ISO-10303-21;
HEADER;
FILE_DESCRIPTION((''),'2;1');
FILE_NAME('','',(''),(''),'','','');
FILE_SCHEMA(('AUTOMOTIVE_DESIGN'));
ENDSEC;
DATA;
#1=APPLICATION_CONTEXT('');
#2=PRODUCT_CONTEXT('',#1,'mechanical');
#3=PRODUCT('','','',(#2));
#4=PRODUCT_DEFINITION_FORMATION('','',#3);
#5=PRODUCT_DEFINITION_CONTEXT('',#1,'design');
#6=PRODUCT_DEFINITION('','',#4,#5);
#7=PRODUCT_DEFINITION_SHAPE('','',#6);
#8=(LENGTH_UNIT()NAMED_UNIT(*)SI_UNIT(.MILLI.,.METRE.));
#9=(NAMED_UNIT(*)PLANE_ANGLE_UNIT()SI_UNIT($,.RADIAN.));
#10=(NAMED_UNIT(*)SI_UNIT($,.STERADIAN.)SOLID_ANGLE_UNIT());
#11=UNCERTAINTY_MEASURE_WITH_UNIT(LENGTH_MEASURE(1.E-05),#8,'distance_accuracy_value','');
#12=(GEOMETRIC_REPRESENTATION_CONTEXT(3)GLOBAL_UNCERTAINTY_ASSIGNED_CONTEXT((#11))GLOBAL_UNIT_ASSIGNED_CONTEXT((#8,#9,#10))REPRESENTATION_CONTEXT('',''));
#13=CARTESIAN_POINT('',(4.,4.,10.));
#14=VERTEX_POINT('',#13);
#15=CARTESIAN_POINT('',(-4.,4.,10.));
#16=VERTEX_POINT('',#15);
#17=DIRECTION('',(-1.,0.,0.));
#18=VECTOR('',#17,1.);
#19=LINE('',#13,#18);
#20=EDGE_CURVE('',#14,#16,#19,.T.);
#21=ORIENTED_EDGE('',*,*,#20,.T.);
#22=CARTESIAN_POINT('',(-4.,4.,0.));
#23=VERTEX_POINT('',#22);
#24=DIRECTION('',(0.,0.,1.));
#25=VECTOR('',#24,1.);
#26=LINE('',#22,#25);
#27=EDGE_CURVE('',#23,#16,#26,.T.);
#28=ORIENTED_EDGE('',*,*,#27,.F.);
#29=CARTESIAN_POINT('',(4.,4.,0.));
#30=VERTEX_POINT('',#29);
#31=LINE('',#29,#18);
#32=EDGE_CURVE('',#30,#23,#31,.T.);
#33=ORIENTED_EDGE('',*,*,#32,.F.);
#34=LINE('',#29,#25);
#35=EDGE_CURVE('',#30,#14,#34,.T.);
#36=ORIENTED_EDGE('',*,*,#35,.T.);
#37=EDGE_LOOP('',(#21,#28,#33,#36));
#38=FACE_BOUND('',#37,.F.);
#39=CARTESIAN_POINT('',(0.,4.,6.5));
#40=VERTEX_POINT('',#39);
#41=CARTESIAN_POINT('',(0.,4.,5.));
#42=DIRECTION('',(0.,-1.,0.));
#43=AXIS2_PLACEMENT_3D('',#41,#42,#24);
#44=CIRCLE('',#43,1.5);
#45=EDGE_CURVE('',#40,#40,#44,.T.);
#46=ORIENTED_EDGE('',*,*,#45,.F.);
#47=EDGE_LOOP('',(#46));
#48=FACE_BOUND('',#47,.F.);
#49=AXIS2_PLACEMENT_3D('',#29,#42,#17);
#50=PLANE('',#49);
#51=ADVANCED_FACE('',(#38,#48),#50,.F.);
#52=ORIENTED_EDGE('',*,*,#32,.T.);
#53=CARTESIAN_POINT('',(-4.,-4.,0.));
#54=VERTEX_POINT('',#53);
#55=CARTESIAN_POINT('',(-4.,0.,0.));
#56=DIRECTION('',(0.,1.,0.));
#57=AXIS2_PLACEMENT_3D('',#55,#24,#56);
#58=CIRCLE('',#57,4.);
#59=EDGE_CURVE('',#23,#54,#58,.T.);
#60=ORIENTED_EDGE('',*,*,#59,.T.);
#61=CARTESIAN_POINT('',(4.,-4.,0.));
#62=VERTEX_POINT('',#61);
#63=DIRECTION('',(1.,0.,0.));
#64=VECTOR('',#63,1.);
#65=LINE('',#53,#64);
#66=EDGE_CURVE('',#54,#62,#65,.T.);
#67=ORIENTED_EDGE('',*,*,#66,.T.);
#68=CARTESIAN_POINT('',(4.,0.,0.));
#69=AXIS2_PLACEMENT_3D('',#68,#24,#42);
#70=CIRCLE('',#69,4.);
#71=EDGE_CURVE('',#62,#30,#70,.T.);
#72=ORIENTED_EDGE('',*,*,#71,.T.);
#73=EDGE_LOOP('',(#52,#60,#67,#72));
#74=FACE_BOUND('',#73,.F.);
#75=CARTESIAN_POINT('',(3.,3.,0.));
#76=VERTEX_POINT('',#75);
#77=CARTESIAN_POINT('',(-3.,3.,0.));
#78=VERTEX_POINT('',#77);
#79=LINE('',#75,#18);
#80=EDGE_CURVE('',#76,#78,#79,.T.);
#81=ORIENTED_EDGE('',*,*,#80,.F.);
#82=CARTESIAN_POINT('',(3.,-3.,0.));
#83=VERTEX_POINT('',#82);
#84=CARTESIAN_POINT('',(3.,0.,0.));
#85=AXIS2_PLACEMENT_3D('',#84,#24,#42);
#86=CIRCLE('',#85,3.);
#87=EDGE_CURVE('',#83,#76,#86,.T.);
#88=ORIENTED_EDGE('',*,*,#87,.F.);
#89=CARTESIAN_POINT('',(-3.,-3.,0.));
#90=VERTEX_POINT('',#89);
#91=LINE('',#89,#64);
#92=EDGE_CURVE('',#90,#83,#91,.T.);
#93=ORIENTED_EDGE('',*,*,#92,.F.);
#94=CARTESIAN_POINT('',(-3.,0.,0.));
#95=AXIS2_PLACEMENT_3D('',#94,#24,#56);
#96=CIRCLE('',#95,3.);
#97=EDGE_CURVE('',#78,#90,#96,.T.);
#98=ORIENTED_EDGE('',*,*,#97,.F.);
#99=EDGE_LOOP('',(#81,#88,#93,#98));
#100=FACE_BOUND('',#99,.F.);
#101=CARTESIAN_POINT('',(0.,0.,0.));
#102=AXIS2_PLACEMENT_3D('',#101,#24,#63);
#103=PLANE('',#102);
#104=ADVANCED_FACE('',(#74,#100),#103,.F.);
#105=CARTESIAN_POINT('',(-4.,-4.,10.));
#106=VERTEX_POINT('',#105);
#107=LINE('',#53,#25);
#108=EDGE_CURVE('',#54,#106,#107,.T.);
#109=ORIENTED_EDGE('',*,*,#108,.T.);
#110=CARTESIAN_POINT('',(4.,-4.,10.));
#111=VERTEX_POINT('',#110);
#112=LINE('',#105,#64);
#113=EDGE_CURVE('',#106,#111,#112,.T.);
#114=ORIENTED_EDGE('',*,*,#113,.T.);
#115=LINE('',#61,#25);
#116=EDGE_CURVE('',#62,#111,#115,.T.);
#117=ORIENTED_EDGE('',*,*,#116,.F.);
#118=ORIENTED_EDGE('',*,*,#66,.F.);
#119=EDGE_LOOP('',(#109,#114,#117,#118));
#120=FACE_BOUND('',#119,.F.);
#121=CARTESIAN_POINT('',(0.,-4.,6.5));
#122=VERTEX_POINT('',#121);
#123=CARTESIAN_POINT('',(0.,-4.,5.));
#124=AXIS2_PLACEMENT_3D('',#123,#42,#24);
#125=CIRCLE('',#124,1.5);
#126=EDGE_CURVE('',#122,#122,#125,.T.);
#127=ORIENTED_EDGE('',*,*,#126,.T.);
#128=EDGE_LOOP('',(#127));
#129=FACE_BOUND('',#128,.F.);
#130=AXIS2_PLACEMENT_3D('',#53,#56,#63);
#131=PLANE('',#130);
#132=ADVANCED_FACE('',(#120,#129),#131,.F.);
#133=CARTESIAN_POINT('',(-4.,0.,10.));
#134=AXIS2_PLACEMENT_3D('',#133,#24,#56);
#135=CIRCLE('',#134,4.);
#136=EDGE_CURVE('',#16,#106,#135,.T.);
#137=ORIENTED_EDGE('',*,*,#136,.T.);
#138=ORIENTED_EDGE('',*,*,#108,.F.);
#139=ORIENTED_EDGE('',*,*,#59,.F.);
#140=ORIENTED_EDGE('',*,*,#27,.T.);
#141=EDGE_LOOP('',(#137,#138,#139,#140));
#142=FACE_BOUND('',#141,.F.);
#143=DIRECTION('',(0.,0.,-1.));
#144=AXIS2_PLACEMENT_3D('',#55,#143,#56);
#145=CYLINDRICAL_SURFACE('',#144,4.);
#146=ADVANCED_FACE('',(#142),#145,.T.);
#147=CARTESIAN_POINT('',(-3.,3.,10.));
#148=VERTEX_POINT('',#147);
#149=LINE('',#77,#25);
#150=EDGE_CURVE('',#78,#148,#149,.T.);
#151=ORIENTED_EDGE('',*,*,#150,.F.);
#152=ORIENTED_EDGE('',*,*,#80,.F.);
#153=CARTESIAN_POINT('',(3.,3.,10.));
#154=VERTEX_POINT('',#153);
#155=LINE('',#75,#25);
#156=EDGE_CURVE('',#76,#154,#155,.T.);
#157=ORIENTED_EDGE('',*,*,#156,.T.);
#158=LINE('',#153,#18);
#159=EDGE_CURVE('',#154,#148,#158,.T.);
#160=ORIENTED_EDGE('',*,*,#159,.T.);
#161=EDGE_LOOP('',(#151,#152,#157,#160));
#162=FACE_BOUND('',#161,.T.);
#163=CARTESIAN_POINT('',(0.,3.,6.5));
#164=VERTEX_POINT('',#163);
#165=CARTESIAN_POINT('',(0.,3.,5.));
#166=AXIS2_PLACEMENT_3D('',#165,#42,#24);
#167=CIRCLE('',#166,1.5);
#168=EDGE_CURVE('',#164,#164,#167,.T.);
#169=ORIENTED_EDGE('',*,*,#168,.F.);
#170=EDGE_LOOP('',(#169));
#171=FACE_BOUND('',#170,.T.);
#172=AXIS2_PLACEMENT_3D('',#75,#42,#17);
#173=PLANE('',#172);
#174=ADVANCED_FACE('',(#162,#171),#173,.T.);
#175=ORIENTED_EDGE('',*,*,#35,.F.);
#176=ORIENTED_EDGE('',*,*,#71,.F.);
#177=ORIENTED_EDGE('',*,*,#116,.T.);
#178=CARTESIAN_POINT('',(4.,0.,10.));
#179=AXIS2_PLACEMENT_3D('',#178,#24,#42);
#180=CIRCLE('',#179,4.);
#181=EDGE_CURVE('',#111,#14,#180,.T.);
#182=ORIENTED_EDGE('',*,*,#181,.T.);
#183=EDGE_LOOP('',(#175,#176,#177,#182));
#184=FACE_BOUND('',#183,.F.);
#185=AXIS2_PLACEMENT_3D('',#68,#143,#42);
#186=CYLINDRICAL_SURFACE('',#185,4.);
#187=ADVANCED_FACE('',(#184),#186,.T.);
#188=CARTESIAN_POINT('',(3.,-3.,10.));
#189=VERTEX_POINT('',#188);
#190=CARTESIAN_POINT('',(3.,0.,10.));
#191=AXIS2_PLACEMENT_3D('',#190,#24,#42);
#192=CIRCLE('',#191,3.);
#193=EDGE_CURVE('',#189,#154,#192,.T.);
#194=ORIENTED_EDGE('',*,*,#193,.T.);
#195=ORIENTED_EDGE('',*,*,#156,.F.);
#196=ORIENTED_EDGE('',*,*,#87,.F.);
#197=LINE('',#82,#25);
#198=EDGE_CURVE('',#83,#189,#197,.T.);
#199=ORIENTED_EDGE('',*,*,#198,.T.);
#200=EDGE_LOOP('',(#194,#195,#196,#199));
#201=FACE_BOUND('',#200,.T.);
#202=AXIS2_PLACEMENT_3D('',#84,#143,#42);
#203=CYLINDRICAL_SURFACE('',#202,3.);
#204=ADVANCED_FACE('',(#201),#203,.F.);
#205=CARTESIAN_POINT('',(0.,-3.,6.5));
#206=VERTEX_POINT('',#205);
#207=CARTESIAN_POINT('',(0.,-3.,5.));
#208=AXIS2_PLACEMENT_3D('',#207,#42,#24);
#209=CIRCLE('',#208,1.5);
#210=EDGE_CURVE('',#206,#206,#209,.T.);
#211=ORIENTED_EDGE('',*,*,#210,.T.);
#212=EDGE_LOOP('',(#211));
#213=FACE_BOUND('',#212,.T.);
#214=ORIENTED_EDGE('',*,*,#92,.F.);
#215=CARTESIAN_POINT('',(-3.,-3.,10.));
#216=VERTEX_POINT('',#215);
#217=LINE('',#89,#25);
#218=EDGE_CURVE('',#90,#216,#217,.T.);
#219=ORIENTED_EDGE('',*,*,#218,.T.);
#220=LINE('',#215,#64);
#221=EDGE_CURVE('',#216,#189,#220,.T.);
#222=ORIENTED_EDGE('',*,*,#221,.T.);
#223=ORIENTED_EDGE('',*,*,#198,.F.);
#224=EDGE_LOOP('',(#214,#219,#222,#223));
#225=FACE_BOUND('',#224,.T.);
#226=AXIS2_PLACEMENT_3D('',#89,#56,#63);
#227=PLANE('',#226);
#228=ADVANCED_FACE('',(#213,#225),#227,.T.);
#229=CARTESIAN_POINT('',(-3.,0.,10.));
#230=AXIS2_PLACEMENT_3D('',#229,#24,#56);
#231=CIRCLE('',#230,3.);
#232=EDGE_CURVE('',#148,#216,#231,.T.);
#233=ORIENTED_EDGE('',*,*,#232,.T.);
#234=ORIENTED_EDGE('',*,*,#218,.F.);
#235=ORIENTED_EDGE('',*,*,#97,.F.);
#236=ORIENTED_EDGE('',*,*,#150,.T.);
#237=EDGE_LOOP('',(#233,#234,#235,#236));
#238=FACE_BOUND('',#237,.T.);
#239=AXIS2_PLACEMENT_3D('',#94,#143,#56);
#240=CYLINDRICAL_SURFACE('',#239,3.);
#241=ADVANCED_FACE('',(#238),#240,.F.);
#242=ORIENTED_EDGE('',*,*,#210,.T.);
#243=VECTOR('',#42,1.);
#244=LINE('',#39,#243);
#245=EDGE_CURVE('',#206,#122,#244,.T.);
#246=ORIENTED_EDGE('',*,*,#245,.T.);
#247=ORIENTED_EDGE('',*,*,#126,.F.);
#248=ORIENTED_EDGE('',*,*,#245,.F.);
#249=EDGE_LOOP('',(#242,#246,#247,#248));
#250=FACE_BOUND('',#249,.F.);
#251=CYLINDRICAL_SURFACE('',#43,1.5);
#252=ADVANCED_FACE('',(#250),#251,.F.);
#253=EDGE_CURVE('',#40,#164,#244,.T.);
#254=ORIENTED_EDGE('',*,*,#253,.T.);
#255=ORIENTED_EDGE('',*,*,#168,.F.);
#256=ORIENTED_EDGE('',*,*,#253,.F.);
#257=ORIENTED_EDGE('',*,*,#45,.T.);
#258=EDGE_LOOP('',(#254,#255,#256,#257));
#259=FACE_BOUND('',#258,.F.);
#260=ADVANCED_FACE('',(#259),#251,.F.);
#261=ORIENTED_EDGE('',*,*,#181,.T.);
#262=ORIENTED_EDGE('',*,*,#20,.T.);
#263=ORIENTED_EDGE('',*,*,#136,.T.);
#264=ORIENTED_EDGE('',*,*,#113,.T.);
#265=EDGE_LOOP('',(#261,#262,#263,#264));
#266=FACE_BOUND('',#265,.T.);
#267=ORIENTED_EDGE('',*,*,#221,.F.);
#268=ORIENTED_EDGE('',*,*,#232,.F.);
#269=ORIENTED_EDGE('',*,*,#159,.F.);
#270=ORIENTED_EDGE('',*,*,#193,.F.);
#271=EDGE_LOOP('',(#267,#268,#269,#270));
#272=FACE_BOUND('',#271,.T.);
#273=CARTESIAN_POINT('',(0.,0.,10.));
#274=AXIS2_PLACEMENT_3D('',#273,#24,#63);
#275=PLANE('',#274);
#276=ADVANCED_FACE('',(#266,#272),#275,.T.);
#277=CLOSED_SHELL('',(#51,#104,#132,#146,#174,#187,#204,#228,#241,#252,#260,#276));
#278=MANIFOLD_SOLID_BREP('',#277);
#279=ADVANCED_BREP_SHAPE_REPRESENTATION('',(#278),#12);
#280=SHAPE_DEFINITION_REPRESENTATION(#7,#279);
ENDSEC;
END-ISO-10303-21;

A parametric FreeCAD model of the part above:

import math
import FreeCAD as App
import Part
import Sketcher
from FreeCAD import Vector
Q = App.Units.Quantity

doc = App.newDocument("Part")
body = doc.addObject("PartDesign::Body", "Body")

# Sketch on XY plane
sketch1 = body.newObject("Sketcher::SketchObject", "Sketch")
sketch1.AttachmentSupport = (doc.getObject("XY_Plane"), [""])
sketch1.MapMode = "FlatFace"
sketch1.addGeometry([
    Part.ArcOfCircle(Part.Circle(Vector(-4, 0, 0), Vector(0, 0, 1), 4), math.radians(90), math.radians(270)),  # 0
    Part.LineSegment(Vector(-4, -4, 0), Vector(4, -4, 0)),  # 1
    Part.ArcOfCircle(Part.Circle(Vector(4, 0, 0), Vector(0, 0, 1), 4), math.radians(-90), math.radians(90)),  # 2
    Part.LineSegment(Vector(4, 4, 0), Vector(-4, 4, 0)),  # 3
    Part.LineSegment(Vector(3, -3, 0), Vector(-3, -3, 0)),  # 4
    Part.ArcOfCircle(Part.Circle(Vector(-3, 0, 0), Vector(0, 0, 1), 3), math.radians(90), math.radians(270)),  # 5
    Part.LineSegment(Vector(-3, 3, 0), Vector(3, 3, 0)),  # 6
    Part.ArcOfCircle(Part.Circle(Vector(3, 0, 0), Vector(0, 0, 1), 3), math.radians(-90), math.radians(90)),  # 7
], False)
sketch1.addConstraint([
    Sketcher.Constraint("Tangent", 0, 2, 1, 1),
    Sketcher.Constraint("Tangent", 1, 2, 2, 1),
    Sketcher.Constraint("Tangent", 2, 2, 3, 1),
    Sketcher.Constraint("Tangent", 3, 2, 0, 1),
    Sketcher.Constraint("Tangent", 4, 2, 5, 2),
    Sketcher.Constraint("Tangent", 5, 1, 6, 1),
    Sketcher.Constraint("Tangent", 6, 2, 7, 2),
    Sketcher.Constraint("Tangent", 7, 1, 4, 1),
    Sketcher.Constraint("Horizontal", 1),
    Sketcher.Constraint("Horizontal", 3),
    Sketcher.Constraint("Horizontal", 4),
    Sketcher.Constraint("Horizontal", 6),
    Sketcher.Constraint("Symmetric", 0, 3, 2, 3, -1, 1),
    Sketcher.Constraint("Symmetric", 5, 3, 7, 3, -1, 1),
    Sketcher.Constraint("Radius", 0, Q("4 mm")),
    Sketcher.Constraint("Radius", 5, Q("3 mm")),
    Sketcher.Constraint("DistanceX", 1, 1, 1, 2, Q("8 mm")),
    Sketcher.Constraint("DistanceX", 4, 2, 4, 1, Q("6 mm")),
])
pad1 = body.newObject("PartDesign::Pad", "Pad")
pad1.Profile = sketch1
pad1.Length = 10

# Sketch on XZ plane
sketch2 = body.newObject("Sketcher::SketchObject", "Sketch001")
sketch2.AttachmentSupport = (doc.getObject("XZ_Plane"), [""])
sketch2.MapMode = "FlatFace"
sketch2.AttachmentOffset = App.Placement(Vector(0, 0, -4), App.Rotation())
sketch2.addGeometry(Part.Circle(Vector(0, 5, 0), Vector(0, 0, 1), 1.5), False)
sketch2.addConstraint([
    Sketcher.Constraint("PointOnObject", 0, 3, -2),
    Sketcher.Constraint("Diameter", 0, Q("3 mm")),
    Sketcher.Constraint("DistanceY", -1, 1, 0, 3, Q("5 mm")),
])
doc.recompute()
hole = body.newObject("PartDesign::Hole", "Hole")
hole.Profile = sketch2
hole.ThreadType = "None"
hole.Diameter = 3
hole.DepthType = "ThroughAll"
hole.Reversed = True

doc.recompute()
